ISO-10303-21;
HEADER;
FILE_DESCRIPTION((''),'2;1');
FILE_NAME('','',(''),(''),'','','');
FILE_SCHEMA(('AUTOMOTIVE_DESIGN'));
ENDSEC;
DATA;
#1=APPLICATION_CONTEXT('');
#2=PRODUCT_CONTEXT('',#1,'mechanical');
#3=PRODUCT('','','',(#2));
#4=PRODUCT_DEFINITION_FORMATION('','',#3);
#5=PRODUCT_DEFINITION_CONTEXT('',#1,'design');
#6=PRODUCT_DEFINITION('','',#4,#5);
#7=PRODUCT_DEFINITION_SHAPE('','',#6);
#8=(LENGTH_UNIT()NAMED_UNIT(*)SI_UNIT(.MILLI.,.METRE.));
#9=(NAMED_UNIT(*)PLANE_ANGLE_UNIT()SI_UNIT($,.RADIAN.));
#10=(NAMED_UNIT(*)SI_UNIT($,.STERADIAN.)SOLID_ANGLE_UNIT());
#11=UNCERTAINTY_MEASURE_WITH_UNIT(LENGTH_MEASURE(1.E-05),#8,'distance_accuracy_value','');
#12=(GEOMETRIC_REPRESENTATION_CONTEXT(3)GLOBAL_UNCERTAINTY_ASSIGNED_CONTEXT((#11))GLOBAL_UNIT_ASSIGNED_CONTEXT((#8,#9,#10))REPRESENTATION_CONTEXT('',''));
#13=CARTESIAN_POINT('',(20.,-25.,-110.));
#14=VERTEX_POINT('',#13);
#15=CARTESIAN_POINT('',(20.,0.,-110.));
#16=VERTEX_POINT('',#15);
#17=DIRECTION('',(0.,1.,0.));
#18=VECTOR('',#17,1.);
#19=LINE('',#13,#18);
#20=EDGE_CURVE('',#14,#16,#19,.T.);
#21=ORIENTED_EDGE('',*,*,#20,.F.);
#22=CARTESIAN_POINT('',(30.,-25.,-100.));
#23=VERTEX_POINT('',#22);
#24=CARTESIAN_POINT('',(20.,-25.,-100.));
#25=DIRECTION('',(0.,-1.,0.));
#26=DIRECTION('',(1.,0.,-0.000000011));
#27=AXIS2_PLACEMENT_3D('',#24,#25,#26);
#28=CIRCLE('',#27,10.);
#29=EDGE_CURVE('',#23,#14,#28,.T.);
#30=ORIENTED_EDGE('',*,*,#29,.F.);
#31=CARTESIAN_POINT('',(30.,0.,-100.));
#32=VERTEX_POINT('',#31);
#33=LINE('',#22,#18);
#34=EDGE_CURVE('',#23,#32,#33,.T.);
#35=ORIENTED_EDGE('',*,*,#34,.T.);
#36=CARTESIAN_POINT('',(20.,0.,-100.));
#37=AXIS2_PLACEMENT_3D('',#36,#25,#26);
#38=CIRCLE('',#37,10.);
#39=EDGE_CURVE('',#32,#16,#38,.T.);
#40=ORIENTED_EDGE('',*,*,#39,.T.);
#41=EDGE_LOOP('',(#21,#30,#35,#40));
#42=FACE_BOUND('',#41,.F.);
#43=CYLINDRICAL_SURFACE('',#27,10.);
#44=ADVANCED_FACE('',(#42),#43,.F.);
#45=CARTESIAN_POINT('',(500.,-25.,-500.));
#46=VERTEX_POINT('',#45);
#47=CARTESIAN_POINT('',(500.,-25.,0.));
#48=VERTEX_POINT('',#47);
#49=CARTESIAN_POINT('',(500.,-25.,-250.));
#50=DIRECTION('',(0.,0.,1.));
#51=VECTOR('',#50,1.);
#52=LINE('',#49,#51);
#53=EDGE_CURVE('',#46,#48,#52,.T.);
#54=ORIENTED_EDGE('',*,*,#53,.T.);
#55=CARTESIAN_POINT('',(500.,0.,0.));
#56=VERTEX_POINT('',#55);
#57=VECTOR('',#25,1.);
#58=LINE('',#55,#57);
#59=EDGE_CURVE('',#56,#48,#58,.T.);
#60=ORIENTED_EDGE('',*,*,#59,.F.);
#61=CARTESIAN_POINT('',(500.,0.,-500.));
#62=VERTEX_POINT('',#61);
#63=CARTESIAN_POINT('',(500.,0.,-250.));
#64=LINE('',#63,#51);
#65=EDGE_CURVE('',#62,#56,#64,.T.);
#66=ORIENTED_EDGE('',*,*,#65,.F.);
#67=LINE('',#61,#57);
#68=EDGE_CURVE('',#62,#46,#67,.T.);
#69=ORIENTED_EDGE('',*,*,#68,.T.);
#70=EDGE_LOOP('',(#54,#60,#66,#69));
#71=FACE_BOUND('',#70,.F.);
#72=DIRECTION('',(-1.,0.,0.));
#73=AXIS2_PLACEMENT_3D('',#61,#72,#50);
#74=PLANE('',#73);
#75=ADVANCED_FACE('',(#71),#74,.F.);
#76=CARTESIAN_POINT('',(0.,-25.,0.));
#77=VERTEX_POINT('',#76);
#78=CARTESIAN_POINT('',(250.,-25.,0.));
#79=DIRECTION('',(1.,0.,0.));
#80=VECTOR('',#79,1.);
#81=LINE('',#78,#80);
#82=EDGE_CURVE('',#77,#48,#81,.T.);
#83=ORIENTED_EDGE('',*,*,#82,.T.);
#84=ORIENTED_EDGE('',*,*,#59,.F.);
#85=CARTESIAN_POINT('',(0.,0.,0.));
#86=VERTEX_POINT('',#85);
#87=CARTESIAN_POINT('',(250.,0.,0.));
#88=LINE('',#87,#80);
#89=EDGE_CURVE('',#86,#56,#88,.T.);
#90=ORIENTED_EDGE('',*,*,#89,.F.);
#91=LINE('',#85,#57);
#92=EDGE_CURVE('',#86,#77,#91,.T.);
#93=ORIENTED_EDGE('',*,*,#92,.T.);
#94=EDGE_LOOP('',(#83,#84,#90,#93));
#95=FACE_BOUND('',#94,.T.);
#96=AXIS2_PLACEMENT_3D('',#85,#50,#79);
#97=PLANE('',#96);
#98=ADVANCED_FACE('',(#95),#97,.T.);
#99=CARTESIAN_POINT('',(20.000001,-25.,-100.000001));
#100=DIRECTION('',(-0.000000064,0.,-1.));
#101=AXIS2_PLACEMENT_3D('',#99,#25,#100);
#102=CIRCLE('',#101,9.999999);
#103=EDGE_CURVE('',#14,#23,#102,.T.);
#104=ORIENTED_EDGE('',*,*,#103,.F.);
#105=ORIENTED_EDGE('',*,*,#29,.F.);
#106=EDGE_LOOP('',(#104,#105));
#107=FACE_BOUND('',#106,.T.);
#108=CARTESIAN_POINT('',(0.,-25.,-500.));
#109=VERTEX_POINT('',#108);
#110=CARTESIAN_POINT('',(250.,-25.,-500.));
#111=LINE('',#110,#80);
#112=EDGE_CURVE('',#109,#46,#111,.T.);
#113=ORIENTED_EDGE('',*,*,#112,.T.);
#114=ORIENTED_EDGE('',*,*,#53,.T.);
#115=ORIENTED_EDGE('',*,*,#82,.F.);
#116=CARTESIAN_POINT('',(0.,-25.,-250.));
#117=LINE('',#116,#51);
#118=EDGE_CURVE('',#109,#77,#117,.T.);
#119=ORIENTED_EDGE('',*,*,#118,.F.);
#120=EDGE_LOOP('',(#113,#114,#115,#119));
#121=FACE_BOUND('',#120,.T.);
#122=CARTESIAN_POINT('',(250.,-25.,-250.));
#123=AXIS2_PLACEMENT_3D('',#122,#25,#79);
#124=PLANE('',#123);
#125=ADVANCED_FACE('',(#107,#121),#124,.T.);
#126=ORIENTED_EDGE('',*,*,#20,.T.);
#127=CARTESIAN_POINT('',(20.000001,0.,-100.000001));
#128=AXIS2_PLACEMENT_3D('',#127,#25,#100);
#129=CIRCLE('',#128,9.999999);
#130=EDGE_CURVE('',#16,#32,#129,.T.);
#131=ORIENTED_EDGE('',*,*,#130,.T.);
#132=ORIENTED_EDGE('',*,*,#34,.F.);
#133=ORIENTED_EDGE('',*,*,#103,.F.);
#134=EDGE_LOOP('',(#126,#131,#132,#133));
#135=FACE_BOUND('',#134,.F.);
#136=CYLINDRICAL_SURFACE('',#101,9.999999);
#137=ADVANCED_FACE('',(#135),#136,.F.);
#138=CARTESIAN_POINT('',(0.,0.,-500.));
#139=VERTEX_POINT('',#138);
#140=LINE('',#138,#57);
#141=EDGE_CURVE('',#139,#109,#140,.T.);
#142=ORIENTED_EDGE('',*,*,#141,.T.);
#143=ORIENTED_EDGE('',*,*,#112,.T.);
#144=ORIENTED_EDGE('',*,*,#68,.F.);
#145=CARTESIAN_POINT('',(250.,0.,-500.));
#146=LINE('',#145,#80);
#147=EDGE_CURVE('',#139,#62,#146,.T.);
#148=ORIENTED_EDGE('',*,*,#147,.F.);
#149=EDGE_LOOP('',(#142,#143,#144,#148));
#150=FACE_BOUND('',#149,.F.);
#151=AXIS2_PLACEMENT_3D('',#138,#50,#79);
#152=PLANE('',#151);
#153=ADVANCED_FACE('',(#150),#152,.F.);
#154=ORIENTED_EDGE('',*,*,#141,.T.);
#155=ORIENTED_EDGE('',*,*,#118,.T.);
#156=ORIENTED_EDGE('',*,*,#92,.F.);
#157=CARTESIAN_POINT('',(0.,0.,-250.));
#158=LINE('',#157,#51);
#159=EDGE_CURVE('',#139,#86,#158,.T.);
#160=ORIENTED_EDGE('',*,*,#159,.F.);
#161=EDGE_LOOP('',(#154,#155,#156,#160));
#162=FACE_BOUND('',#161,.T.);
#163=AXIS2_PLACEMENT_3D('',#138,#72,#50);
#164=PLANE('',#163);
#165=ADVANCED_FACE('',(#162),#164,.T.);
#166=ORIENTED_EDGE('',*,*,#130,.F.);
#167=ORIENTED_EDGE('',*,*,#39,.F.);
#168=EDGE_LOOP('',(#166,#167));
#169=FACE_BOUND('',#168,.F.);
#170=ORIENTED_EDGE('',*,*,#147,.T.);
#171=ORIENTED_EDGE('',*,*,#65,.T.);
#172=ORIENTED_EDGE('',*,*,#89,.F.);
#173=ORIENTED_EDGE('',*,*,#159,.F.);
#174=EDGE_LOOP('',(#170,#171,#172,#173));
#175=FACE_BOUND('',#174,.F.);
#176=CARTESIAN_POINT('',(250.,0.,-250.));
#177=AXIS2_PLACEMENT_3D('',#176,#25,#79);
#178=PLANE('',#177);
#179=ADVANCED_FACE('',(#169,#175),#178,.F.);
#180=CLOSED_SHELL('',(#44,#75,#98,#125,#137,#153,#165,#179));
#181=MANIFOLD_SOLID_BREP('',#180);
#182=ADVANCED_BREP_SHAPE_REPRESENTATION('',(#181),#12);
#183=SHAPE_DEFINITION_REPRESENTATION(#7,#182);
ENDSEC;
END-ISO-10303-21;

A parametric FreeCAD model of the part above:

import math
import FreeCAD as App
import Part
import Sketcher

V = App.Vector

doc = App.newDocument("Part")
body = doc.addObject("PartDesign::Body", "Body")

# Sketch on XZ plane
sketch1 = body.newObject("Sketcher::SketchObject", "Sketch")
sketch1.AttachmentSupport = (doc.getObject("XZ_Plane"), [""])
sketch1.MapMode = "FlatFace"
sketch1.addGeometry(Part.LineSegment(V(0, 0, 0), V(0, -500, 0)), False)
sketch1.addGeometry(Part.LineSegment(V(0, -500, 0), V(500, -500, 0)), False)
sketch1.addGeometry(Part.LineSegment(V(500, -500, 0), V(500, 0, 0)), False)
sketch1.addGeometry(Part.LineSegment(V(500, 0, 0), V(0, 0, 0)), False)
sketch1.addConstraint(Sketcher.Constraint("Coincident", 0, 2, 1, 1))
sketch1.addConstraint(Sketcher.Constraint("Coincident", 1, 2, 2, 1))
sketch1.addConstraint(Sketcher.Constraint("Coincident", 2, 2, 3, 1))
sketch1.addConstraint(Sketcher.Constraint("Coincident", 3, 2, 0, 1))
sketch1.addConstraint(Sketcher.Constraint("Vertical", 0))
sketch1.addConstraint(Sketcher.Constraint("Horizontal", 1))
sketch1.addConstraint(Sketcher.Constraint("Vertical", 2))
sketch1.addConstraint(Sketcher.Constraint("Horizontal", 3))
sketch1.addConstraint(Sketcher.Constraint("Coincident", 3, 2, -1, 1))
sketch1.addConstraint(Sketcher.Constraint("Equal", 3, 0))
sketch1.addConstraint(Sketcher.Constraint("DistanceX", 1, 1, 1, 2, 500.0))
pad1 = body.newObject("PartDesign::Pad", "Pad")
pad1.Profile = sketch1
pad1.Length = 25

# Sketch on XZ plane
sketch2 = body.newObject("Sketcher::SketchObject", "Sketch001")
sketch2.AttachmentSupport = (doc.getObject("XZ_Plane"), [""])
sketch2.MapMode = "FlatFace"
sketch2.AttachmentOffset = App.Placement(V(0, 0, 25), App.Rotation())
sketch2.addGeometry(Part.ArcOfCircle(Part.Circle(V(20.000001, -100.000001, 0), V(0, 0, 1), 9.999999), math.radians(-90.000004), math.radians(0.000004)), False)
sketch2.addGeometry(Part.ArcOfCircle(Part.Circle(V(20, -100, 0), V(0, 0, 1), 10), math.radians(-0.000001), math.radians(270.000001)), False)
sketch2.addConstraint(Sketcher.Constraint("Tangent", 0, 1, 1, 2))
sketch2.addConstraint(Sketcher.Constraint("Coincident", 1, 1, 0, 2))
sketch2.addConstraint(Sketcher.Constraint("Horizontal", 0, 3, 1, 1))
sketch2.addConstraint(Sketcher.Constraint("Vertical", 1, 3, 0, 1))
sketch2.addConstraint(Sketcher.Constraint("Radius", 0, 9.999999))
sketch2.addConstraint(Sketcher.Constraint("DistanceX", -1, 1, 0, 3, 20.000001))
sketch2.addConstraint(Sketcher.Constraint("DistanceY", 0, 3, -1, 1, 100.000001))
pocket1 = body.newObject("PartDesign::Pocket", "Pocket")
pocket1.Profile = sketch2
pocket1.Length = 25

doc.recompute()
